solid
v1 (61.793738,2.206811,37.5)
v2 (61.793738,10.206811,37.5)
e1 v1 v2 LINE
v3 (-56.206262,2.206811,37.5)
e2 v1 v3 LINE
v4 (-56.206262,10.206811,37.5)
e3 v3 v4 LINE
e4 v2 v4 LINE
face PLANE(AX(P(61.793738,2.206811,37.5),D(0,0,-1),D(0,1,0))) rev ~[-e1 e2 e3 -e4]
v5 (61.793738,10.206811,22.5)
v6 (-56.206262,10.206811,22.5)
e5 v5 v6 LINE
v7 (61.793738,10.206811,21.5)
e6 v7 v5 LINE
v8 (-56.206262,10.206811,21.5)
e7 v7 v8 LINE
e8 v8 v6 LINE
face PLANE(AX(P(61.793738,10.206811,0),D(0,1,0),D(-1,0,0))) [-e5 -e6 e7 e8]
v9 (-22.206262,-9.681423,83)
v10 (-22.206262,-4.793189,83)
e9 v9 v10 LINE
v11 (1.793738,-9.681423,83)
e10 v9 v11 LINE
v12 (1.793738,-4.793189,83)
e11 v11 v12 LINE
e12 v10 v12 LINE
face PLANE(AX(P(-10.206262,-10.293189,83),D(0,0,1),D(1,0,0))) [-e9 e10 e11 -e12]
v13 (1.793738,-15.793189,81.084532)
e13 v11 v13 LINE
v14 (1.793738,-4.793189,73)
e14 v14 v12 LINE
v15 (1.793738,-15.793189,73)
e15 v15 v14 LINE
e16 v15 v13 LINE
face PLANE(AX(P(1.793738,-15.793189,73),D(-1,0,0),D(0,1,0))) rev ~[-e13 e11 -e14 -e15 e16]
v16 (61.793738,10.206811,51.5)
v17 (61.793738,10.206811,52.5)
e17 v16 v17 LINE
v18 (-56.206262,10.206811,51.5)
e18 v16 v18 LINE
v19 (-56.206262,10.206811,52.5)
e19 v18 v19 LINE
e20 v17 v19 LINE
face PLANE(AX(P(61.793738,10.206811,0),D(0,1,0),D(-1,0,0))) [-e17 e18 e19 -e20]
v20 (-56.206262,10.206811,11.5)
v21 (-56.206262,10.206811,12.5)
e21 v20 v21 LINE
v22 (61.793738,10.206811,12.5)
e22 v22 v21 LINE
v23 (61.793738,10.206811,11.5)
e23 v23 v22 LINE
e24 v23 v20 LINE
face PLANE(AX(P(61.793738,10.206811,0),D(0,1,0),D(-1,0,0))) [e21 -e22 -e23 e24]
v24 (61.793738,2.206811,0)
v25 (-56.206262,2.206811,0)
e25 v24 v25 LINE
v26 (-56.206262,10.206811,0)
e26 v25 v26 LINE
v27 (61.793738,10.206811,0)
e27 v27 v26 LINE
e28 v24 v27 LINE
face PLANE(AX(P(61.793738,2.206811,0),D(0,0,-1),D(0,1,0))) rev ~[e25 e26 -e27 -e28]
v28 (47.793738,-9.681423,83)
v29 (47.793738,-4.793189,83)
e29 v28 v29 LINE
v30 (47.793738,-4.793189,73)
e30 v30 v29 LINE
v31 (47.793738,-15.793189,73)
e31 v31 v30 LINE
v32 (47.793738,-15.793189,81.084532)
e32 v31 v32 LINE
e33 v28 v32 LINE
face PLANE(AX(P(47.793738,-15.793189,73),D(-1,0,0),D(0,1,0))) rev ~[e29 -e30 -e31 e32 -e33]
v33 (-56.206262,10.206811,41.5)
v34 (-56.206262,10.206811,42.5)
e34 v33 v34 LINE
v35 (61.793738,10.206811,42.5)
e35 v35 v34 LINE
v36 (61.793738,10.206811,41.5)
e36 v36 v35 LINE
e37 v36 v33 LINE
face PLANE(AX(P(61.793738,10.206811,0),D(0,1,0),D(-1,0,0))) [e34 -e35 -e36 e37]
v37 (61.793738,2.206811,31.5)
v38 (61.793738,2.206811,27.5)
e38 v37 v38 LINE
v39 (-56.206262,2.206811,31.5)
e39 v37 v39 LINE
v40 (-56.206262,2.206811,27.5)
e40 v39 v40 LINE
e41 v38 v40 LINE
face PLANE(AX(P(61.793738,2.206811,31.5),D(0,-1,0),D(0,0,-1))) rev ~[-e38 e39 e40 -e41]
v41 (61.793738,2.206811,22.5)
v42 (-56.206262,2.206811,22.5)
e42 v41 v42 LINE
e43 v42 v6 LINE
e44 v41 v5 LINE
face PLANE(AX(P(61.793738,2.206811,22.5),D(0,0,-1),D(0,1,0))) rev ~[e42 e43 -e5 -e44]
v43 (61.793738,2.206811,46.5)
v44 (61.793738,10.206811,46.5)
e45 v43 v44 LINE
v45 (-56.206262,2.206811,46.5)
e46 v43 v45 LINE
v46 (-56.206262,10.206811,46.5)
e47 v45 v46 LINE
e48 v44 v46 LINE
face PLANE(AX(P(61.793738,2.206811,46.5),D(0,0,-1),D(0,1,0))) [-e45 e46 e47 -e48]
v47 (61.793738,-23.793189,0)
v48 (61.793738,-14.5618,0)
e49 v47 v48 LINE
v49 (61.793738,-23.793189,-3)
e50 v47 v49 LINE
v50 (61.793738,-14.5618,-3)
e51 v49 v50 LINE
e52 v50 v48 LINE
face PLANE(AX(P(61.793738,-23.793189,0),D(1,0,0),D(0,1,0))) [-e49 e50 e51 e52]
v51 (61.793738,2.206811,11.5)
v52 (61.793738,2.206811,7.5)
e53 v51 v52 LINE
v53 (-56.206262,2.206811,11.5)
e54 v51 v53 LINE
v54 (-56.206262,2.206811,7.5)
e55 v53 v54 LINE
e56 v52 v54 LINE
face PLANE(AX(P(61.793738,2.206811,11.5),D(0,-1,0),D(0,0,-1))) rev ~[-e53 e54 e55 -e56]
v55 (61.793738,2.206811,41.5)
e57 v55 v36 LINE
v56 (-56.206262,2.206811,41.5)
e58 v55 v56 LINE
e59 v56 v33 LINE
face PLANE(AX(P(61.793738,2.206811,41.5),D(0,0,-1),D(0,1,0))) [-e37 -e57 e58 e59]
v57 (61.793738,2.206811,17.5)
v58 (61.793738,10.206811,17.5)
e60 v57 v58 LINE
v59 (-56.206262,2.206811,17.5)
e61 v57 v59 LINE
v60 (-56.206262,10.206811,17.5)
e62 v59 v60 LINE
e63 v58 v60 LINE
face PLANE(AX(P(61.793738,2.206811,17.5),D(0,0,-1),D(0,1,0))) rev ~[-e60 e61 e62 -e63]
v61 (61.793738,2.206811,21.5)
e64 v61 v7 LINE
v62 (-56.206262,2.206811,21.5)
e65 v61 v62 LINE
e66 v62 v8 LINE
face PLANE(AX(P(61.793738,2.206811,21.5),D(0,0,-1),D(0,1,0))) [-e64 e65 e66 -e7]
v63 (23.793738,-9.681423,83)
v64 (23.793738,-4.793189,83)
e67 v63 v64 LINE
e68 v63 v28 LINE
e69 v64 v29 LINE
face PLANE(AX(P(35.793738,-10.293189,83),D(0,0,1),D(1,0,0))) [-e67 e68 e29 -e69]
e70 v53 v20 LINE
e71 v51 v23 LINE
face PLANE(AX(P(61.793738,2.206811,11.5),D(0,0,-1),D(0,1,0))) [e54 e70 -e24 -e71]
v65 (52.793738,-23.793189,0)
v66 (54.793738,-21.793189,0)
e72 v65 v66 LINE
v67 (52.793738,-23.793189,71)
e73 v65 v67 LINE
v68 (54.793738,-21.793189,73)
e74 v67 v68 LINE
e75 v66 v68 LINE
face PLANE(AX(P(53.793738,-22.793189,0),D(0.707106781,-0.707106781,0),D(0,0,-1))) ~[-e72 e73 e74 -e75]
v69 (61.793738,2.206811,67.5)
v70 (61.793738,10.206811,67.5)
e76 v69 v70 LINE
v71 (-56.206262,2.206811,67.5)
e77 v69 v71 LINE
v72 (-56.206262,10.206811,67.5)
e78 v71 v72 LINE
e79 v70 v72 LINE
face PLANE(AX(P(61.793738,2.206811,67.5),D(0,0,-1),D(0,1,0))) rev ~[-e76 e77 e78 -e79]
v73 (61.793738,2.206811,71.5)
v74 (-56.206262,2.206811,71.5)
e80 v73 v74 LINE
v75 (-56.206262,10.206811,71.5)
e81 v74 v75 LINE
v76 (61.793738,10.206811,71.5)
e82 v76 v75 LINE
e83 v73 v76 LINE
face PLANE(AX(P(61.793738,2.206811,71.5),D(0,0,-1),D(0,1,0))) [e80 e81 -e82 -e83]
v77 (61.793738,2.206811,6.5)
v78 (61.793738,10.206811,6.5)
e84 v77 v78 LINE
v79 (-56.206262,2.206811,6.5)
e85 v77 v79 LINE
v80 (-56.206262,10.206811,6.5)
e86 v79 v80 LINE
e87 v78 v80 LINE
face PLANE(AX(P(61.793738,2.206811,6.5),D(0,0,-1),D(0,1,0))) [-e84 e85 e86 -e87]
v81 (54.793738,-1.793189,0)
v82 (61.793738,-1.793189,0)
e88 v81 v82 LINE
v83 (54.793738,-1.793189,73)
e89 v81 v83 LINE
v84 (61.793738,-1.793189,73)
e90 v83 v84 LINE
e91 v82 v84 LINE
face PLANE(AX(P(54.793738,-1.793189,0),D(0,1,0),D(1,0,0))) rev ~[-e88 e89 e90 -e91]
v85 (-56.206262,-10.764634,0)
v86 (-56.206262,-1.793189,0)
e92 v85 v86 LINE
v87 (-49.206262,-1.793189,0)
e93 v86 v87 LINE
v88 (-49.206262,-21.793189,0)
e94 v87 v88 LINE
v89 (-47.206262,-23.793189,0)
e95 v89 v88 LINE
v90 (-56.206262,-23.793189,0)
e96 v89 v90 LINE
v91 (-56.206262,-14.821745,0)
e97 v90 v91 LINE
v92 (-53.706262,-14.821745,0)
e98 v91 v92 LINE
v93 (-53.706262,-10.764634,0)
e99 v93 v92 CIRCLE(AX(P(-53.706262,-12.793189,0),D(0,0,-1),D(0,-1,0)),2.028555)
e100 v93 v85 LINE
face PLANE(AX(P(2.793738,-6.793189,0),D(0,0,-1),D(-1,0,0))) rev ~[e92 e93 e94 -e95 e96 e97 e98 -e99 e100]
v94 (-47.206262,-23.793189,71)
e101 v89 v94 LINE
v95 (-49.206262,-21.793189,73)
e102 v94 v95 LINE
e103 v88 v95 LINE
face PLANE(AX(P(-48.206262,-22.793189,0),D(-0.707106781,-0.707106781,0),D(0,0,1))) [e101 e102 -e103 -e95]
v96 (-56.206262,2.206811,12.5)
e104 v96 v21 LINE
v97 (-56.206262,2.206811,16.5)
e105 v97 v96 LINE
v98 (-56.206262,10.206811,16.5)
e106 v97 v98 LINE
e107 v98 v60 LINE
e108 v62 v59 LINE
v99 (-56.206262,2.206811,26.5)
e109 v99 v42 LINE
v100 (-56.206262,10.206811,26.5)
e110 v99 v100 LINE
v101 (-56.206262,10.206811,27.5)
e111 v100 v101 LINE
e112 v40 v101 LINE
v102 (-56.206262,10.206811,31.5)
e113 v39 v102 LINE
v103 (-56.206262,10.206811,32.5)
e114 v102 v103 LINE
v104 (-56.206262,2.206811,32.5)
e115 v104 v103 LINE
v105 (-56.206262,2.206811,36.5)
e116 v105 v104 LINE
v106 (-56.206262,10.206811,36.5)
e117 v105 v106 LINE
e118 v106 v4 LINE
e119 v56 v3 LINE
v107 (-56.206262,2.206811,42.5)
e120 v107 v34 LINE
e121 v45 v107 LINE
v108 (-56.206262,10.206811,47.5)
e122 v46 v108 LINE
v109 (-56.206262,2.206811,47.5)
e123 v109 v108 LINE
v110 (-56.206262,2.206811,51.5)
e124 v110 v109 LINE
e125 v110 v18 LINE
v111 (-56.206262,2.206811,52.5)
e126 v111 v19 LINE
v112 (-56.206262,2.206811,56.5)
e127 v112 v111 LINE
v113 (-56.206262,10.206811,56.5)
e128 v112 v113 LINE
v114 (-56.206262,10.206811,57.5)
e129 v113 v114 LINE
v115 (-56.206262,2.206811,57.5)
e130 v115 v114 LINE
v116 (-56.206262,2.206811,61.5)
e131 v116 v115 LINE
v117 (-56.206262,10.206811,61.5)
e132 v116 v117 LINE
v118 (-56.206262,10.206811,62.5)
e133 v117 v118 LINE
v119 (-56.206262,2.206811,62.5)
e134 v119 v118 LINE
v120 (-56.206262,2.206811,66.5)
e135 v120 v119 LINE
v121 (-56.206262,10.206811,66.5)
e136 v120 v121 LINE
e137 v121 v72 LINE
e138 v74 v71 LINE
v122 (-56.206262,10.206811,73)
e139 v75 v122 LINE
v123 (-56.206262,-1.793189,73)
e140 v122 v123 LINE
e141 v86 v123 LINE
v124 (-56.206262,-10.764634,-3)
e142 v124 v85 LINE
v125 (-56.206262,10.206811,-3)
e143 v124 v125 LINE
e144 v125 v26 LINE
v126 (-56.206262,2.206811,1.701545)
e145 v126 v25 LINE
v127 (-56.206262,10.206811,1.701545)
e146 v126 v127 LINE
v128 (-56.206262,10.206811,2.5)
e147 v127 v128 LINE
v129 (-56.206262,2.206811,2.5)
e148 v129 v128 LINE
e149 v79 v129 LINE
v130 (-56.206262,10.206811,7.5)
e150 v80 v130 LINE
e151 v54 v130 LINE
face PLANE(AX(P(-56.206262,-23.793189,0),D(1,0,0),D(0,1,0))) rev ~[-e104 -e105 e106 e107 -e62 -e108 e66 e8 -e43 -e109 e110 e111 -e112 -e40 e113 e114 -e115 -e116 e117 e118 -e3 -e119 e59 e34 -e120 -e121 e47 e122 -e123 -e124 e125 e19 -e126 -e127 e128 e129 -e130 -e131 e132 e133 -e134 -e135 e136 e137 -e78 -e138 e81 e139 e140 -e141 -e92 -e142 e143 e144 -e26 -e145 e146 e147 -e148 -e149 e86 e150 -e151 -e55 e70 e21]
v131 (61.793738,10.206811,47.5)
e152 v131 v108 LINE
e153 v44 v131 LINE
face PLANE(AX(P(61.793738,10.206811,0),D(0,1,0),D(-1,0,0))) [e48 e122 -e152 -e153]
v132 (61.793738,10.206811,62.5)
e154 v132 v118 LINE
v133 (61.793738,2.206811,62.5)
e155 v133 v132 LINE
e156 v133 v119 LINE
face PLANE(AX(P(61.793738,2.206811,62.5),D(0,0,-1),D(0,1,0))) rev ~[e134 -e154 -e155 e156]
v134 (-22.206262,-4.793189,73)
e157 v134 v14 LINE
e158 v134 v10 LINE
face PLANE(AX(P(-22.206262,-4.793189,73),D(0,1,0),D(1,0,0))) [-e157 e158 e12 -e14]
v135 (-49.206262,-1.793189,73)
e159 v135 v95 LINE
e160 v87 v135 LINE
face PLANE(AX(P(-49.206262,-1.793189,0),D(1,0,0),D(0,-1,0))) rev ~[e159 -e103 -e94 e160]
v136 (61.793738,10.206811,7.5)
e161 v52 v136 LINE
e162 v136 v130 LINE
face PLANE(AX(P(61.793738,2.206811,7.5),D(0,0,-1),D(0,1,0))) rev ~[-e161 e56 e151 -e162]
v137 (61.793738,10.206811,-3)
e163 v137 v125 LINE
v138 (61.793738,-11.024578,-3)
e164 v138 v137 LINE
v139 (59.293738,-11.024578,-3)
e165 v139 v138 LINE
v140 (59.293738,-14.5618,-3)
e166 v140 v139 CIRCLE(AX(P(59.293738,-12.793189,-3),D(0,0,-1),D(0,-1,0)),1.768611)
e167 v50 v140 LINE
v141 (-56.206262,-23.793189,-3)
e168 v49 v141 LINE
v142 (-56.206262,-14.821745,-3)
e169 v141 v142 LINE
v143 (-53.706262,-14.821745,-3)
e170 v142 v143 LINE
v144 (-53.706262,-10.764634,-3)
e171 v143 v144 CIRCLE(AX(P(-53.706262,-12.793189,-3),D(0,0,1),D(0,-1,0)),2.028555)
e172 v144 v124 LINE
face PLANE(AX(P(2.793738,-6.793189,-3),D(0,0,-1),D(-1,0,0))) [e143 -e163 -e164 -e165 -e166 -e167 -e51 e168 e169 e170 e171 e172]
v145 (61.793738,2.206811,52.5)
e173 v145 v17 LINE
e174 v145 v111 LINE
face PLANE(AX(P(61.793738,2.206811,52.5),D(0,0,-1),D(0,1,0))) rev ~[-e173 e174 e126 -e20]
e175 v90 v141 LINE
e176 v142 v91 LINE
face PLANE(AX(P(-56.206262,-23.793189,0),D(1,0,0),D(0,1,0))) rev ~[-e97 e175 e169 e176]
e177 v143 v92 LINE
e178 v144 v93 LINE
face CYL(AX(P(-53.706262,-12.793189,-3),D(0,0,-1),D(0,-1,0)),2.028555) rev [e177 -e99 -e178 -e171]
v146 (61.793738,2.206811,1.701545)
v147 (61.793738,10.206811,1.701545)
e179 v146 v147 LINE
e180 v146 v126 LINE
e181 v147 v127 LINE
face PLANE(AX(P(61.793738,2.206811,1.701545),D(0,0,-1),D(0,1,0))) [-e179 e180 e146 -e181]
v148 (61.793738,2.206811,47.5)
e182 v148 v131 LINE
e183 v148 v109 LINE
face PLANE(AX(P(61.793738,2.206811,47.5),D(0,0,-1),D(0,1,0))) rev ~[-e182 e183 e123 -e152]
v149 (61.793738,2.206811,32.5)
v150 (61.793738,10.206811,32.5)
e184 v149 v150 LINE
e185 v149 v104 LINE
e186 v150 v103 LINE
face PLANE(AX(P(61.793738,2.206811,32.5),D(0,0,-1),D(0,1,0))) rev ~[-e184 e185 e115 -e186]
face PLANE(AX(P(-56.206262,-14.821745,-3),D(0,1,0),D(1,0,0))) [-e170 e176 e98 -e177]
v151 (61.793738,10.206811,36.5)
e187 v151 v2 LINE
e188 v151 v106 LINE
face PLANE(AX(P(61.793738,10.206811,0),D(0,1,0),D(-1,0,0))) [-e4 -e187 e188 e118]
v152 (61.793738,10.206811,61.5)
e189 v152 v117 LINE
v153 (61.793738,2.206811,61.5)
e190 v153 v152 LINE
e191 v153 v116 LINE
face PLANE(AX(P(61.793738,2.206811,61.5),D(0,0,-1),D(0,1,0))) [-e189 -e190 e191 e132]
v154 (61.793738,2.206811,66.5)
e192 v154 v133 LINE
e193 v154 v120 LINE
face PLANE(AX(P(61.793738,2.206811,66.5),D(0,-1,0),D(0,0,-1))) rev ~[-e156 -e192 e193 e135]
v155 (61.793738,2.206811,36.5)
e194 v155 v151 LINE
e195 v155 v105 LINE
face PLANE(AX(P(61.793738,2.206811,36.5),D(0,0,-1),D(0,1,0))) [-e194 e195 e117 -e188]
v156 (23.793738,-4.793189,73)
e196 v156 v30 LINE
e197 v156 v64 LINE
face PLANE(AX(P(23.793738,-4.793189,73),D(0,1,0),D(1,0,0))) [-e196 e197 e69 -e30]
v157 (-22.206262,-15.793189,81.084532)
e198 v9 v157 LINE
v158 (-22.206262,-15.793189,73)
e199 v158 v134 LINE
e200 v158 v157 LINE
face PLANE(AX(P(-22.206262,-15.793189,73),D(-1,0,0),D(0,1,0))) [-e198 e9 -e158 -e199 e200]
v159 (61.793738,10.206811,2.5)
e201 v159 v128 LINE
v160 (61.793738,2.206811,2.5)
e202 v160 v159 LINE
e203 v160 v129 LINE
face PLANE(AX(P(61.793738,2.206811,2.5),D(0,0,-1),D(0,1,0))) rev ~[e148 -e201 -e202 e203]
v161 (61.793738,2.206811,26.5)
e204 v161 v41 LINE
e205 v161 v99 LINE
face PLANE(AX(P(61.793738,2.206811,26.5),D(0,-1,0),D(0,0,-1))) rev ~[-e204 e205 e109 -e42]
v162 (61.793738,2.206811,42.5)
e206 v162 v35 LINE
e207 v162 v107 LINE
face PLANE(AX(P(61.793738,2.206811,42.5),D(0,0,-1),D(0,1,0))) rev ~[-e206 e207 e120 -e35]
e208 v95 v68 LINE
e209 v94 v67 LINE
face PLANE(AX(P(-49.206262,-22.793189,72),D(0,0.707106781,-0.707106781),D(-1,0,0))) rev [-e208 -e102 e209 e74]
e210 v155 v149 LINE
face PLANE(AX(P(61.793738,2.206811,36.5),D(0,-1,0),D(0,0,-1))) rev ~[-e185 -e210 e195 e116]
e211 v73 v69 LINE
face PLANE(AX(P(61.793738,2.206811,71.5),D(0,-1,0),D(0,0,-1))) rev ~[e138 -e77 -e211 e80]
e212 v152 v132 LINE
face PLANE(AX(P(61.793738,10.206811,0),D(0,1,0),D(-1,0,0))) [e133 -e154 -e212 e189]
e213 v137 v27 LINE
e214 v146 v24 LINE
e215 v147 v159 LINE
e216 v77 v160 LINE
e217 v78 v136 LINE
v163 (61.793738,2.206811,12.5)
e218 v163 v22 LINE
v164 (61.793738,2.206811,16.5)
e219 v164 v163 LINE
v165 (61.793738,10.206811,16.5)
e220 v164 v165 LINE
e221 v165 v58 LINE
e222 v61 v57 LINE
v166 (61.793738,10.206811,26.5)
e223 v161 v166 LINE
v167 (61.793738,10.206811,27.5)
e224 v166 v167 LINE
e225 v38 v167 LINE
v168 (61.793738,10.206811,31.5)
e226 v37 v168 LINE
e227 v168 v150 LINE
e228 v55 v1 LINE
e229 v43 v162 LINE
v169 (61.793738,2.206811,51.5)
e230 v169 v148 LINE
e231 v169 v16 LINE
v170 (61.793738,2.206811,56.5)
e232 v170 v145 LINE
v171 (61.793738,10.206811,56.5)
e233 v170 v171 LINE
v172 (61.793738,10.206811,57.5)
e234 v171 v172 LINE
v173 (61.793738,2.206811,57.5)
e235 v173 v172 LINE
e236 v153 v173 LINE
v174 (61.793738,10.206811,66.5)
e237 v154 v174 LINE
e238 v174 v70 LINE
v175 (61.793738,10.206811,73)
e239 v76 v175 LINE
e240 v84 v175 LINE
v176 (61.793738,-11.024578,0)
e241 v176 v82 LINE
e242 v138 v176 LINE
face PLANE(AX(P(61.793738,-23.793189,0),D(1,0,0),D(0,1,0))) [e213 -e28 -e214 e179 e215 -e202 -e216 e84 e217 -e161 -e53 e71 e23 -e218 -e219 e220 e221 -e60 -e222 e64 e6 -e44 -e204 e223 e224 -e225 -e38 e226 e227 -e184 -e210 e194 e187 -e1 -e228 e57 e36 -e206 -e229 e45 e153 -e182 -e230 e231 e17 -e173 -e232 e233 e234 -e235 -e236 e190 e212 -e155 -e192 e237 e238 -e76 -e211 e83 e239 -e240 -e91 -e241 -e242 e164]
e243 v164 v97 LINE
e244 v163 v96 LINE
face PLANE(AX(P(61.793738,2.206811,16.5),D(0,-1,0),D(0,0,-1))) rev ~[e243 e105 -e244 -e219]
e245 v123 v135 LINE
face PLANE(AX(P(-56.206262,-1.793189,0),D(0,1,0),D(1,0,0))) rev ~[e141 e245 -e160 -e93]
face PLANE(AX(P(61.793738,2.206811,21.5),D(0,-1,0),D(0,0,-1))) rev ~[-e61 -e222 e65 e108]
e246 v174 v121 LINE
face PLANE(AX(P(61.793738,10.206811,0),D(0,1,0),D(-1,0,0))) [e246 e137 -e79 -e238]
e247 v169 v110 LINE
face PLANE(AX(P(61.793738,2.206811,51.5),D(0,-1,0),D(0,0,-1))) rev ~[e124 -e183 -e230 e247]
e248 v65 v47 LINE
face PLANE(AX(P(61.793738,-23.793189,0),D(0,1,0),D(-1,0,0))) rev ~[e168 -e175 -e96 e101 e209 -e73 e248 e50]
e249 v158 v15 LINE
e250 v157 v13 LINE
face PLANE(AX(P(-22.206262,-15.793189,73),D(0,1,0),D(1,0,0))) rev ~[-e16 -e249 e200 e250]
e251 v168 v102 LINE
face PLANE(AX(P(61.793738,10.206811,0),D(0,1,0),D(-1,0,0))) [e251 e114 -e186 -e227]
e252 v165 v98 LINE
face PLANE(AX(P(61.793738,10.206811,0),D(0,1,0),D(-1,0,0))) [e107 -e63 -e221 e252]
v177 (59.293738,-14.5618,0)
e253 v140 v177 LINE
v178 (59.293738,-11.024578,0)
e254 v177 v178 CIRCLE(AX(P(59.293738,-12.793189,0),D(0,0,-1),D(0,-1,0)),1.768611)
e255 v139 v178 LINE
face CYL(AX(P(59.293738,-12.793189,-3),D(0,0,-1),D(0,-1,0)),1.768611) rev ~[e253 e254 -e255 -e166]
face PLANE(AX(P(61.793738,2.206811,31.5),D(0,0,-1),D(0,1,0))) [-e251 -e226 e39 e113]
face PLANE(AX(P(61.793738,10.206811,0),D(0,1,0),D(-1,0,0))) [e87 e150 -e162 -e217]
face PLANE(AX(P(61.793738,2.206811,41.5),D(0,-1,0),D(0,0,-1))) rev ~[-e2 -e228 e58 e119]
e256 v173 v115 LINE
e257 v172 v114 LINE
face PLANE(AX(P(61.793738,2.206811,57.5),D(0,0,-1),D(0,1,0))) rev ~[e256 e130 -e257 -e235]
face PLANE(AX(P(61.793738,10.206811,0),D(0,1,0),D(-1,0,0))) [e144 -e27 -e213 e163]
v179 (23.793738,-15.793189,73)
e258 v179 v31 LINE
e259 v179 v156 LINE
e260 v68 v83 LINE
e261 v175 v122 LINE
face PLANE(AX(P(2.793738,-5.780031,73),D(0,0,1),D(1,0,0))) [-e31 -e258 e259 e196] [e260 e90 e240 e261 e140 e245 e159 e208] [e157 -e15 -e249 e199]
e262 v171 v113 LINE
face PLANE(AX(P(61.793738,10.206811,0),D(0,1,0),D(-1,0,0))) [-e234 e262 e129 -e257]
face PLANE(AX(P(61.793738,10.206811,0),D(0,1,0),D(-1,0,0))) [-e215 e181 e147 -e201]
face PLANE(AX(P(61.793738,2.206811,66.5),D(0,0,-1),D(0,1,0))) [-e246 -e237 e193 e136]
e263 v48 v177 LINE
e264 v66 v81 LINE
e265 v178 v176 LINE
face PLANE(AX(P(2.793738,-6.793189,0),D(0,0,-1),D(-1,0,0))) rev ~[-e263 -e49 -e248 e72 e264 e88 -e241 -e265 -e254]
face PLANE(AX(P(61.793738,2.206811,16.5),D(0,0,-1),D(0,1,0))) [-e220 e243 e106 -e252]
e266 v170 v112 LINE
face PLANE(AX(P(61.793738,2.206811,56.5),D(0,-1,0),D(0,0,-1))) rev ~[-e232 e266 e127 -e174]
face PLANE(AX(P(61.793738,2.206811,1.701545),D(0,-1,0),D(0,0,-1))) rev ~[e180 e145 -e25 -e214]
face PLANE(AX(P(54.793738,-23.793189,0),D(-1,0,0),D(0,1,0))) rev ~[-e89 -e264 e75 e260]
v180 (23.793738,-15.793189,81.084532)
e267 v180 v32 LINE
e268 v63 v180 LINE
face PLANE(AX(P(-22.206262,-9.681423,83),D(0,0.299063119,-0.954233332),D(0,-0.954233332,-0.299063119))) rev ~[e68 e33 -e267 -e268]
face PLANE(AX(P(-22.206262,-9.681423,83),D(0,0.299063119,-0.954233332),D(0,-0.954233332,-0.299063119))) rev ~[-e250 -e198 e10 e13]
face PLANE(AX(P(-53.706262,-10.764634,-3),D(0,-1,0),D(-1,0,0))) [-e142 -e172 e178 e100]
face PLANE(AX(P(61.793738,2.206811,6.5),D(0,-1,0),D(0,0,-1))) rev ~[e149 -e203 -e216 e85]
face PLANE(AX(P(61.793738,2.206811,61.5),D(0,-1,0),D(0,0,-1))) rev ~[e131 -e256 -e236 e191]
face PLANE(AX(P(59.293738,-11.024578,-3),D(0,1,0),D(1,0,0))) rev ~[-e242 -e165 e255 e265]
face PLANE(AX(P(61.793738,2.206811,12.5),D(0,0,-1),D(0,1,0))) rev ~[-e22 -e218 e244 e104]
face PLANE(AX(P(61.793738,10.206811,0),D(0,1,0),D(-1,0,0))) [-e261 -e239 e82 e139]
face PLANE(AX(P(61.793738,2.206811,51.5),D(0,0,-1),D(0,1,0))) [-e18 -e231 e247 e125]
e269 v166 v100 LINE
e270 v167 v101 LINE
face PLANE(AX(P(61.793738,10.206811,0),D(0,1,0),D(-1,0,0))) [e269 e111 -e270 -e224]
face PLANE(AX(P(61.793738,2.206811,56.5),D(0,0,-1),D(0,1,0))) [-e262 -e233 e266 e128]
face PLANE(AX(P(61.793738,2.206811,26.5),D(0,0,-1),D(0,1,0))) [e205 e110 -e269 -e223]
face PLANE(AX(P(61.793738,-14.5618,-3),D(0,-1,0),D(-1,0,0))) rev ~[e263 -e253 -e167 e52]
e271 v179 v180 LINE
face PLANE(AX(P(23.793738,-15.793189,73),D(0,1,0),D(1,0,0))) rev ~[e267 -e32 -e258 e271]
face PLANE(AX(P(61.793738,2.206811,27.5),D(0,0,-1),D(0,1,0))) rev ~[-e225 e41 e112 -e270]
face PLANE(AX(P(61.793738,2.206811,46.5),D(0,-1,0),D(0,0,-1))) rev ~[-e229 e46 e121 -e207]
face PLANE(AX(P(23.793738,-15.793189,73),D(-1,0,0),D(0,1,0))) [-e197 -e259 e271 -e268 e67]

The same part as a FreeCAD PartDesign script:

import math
import FreeCAD as App
import Part
import Sketcher


def edges_at(feature, points):
    """Names of the edges that pass closest to the given points."""
    edges = feature.Shape.Edges
    near = lambda p: min(range(len(edges)), key=lambda i: edges[i].distToShape(Part.Vertex(*p))[0])
    return sorted({f"Edge{near(p) + 1}" for p in points})

doc = App.newDocument("Part")
body = doc.addObject("PartDesign::Body", "Body")

sketch1 = body.newObject("Sketcher::SketchObject", "Sketch")
sketch1.AttachmentSupport = (doc.getObject("XY_Plane"), [""])
sketch1.MapMode = "FlatFace"
sketch1.addGeometry([
    Part.LineSegment(App.Vector(-49.206262, -23.793189, 0), App.Vector(54.793738, -23.793189, 0)),
    Part.LineSegment(App.Vector(54.793738, -23.793189, 0), App.Vector(54.793738, -1.793189, 0)),
    Part.LineSegment(App.Vector(54.793738, -1.793189, 0), App.Vector(61.793738, -1.793189, 0)),
    Part.LineSegment(App.Vector(61.793738, -1.793189, 0), App.Vector(61.793738, 10.206811, 0)),
    Part.LineSegment(App.Vector(61.793738, 10.206811, 0), App.Vector(-56.206262, 10.206811, 0)),
    Part.LineSegment(App.Vector(-56.206262, 10.206811, 0), App.Vector(-56.206262, -1.793189, 0)),
    Part.LineSegment(App.Vector(-56.206262, -1.793189, 0), App.Vector(-49.206262, -1.793189, 0)),
    Part.LineSegment(App.Vector(-49.206262, -1.793189, 0), App.Vector(-49.206262, -23.793189, 0)),
], False)
sketch1.addConstraint([
    Sketcher.Constraint("Coincident", 0, 2, 1, 1),
    Sketcher.Constraint("Coincident", 1, 2, 2, 1),
    Sketcher.Constraint("Coincident", 2, 2, 3, 1),
    Sketcher.Constraint("Coincident", 3, 2, 4, 1),
    Sketcher.Constraint("Coincident", 4, 2, 5, 1),
    Sketcher.Constraint("Coincident", 5, 2, 6, 1),
    Sketcher.Constraint("Coincident", 6, 2, 7, 1),
    Sketcher.Constraint("Coincident", 7, 2, 0, 1),
    Sketcher.Constraint("Horizontal", 0),
    Sketcher.Constraint("Vertical", 1),
    Sketcher.Constraint("Horizontal", 2),
    Sketcher.Constraint("Vertical", 3),
    Sketcher.Constraint("Horizontal", 4),
    Sketcher.Constraint("Vertical", 5),
    Sketcher.Constraint("Horizontal", 6),
    Sketcher.Constraint("Vertical", 7),
    Sketcher.Constraint("Horizontal", 2, 2, 5, 2),
    Sketcher.Constraint("Equal", 2, 6),
    Sketcher.Constraint("DistanceX", 0, 1, 0, 2, 104.0),
    Sketcher.Constraint("DistanceX", 2, 1, 2, 2, 7.0),
    Sketcher.Constraint("DistanceY", 1, 1, 1, 2, 22.0),
    Sketcher.Constraint("DistanceY", 3, 1, 3, 2, 12.0),
    Sketcher.Constraint("DistanceY", 0, 2, -1, 1, 23.793189),
    Sketcher.Constraint("DistanceX", -1, 1, 0, 2, 54.793738),
])
pad1 = body.newObject("PartDesign::Pad", "Pad")
pad1.Profile = sketch1
pad1.Length = 73

sketch2 = body.newObject("Sketcher::SketchObject", "Sketch001")
sketch2.AttachmentSupport = (doc.getObject("XY_Plane"), [""])
sketch2.MapMode = "FlatFace"
sketch2.addGeometry([
    Part.LineSegment(App.Vector(61.793738, 10.206811, 0), App.Vector(61.793738, -23.793189, 0)),
    Part.LineSegment(App.Vector(61.793738, -23.793189, 0), App.Vector(-56.206262, -23.793189, 0)),
    Part.LineSegment(App.Vector(-56.206262, -23.793189, 0), App.Vector(-56.206262, 10.206811, 0)),
    Part.LineSegment(App.Vector(-56.206262, 10.206811, 0), App.Vector(61.793738, 10.206811, 0)),
], False)
sketch2.addConstraint([
    Sketcher.Constraint("Coincident", 0, 2, 1, 1),
    Sketcher.Constraint("Coincident", 1, 2, 2, 1),
    Sketcher.Constraint("Coincident", 2, 2, 3, 1),
    Sketcher.Constraint("Coincident", 3, 2, 0, 1),
    Sketcher.Constraint("Vertical", 0),
    Sketcher.Constraint("Horizontal", 1),
    Sketcher.Constraint("Vertical", 2),
    Sketcher.Constraint("Horizontal", 3),
    Sketcher.Constraint("DistanceX", 1, 2, 1, 1, 118.0),
    Sketcher.Constraint("DistanceY", 0, 2, 0, 1, 34.0),
    Sketcher.Constraint("DistanceY", 0, 2, -1, 1, 23.793189),
    Sketcher.Constraint("DistanceX", -1, 1, 0, 2, 61.793738),
])
pad2 = body.newObject("PartDesign::Pad", "Pad001")
pad2.Profile = sketch2
pad2.Length = 3
pad2.Reversed = True

sketch3 = body.newObject("Sketcher::SketchObject", "Sketch002")
sketch3.AttachmentSupport = (doc.getObject("YZ_Plane"), [""])
sketch3.MapMode = "FlatFace"
sketch3.AttachmentOffset = App.Placement(App.Vector(0, 0, 61.793738), App.Rotation())
sketch3.addGeometry([
    Part.LineSegment(App.Vector(10.206811, 71.5, 0), App.Vector(2.206811, 71.5, 0)),
    Part.LineSegment(App.Vector(2.206811, 71.5, 0), App.Vector(2.206811, 67.5, 0)),
    Part.LineSegment(App.Vector(2.206811, 67.5, 0), App.Vector(10.206811, 67.5, 0)),
    Part.LineSegment(App.Vector(10.206811, 67.5, 0), App.Vector(10.206811, 71.5, 0)),
    Part.LineSegment(App.Vector(10.206811, 66.5, 0), App.Vector(2.206811, 66.5, 0)),
    Part.LineSegment(App.Vector(2.206811, 66.5, 0), App.Vector(2.206811, 62.5, 0)),
    Part.LineSegment(App.Vector(2.206811, 62.5, 0), App.Vector(10.206811, 62.5, 0)),
    Part.LineSegment(App.Vector(10.206811, 62.5, 0), App.Vector(10.206811, 66.5, 0)),
    Part.LineSegment(App.Vector(10.206811, 61.5, 0), App.Vector(2.206811, 61.5, 0)),
    Part.LineSegment(App.Vector(2.206811, 61.5, 0), App.Vector(2.206811, 57.5, 0)),
    Part.LineSegment(App.Vector(2.206811, 57.5, 0), App.Vector(10.206811, 57.5, 0)),
    Part.LineSegment(App.Vector(10.206811, 57.5, 0), App.Vector(10.206811, 61.5, 0)),
    Part.LineSegment(App.Vector(10.206811, 56.5, 0), App.Vector(2.206811, 56.5, 0)),
    Part.LineSegment(App.Vector(2.206811, 56.5, 0), App.Vector(2.206811, 52.5, 0)),
    Part.LineSegment(App.Vector(2.206811, 52.5, 0), App.Vector(10.206811, 52.5, 0)),
    Part.LineSegment(App.Vector(10.206811, 52.5, 0), App.Vector(10.206811, 56.5, 0)),
    Part.LineSegment(App.Vector(10.206811, 51.5, 0), App.Vector(2.206811, 51.5, 0)),
    Part.LineSegment(App.Vector(2.206811, 51.5, 0), App.Vector(2.206811, 47.5, 0)),
    Part.LineSegment(App.Vector(2.206811, 47.5, 0), App.Vector(10.206811, 47.5, 0)),
    Part.LineSegment(App.Vector(10.206811, 47.5, 0), App.Vector(10.206811, 51.5, 0)),
    Part.LineSegment(App.Vector(10.206811, 46.5, 0), App.Vector(2.206811, 46.5, 0)),
    Part.LineSegment(App.Vector(2.206811, 46.5, 0), App.Vector(2.206811, 42.5, 0)),
    Part.LineSegment(App.Vector(2.206811, 42.5, 0), App.Vector(10.206811, 42.5, 0)),
    Part.LineSegment(App.Vector(10.206811, 42.5, 0), App.Vector(10.206811, 46.5, 0)),
    Part.LineSegment(App.Vector(10.206811, 41.5, 0), App.Vector(2.206811, 41.5, 0)),
    Part.LineSegment(App.Vector(2.206811, 41.5, 0), App.Vector(2.206811, 37.5, 0)),
    Part.LineSegment(App.Vector(2.206811, 37.5, 0), App.Vector(10.206811, 37.5, 0)),
    Part.LineSegment(App.Vector(10.206811, 37.5, 0), App.Vector(10.206811, 41.5, 0)),
    Part.LineSegment(App.Vector(10.206811, 36.5, 0), App.Vector(2.206811, 36.5, 0)),
    Part.LineSegment(App.Vector(2.206811, 36.5, 0), App.Vector(2.206811, 32.5, 0)),
    Part.LineSegment(App.Vector(2.206811, 32.5, 0), App.Vector(10.206811, 32.5, 0)),
    Part.LineSegment(App.Vector(10.206811, 32.5, 0), App.Vector(10.206811, 36.5, 0)),
    Part.LineSegment(App.Vector(10.206811, 31.5, 0), App.Vector(2.206811, 31.5, 0)),
    Part.LineSegment(App.Vector(2.206811, 31.5, 0), App.Vector(2.206811, 27.5, 0)),
    Part.LineSegment(App.Vector(2.206811, 27.5, 0), App.Vector(10.206811, 27.5, 0)),
    Part.LineSegment(App.Vector(10.206811, 27.5, 0), App.Vector(10.206811, 31.5, 0)),
    Part.LineSegment(App.Vector(10.206811, 26.5, 0), App.Vector(2.206811, 26.5, 0)),
    Part.LineSegment(App.Vector(2.206811, 26.5, 0), App.Vector(2.206811, 22.5, 0)),
    Part.LineSegment(App.Vector(2.206811, 22.5, 0), App.Vector(10.206811, 22.5, 0)),
    Part.LineSegment(App.Vector(10.206811, 22.5, 0), App.Vector(10.206811, 26.5, 0)),
    Part.LineSegment(App.Vector(10.206811, 21.5, 0), App.Vector(2.206811, 21.5, 0)),
    Part.LineSegment(App.Vector(2.206811, 21.5, 0), App.Vector(2.206811, 17.5, 0)),
    Part.LineSegment(App.Vector(2.206811, 17.5, 0), App.Vector(10.206811, 17.5, 0)),
    Part.LineSegment(App.Vector(10.206811, 17.5, 0), App.Vector(10.206811, 21.5, 0)),
    Part.LineSegment(App.Vector(10.206811, 16.5, 0), App.Vector(2.206811, 16.5, 0)),
    Part.LineSegment(App.Vector(2.206811, 16.5, 0), App.Vector(2.206811, 12.5, 0)),
    Part.LineSegment(App.Vector(2.206811, 12.5, 0), App.Vector(10.206811, 12.5, 0)),
    Part.LineSegment(App.Vector(10.206811, 12.5, 0), App.Vector(10.206811, 16.5, 0)),
    Part.LineSegment(App.Vector(10.206811, 11.5, 0), App.Vector(2.206811, 11.5, 0)),
    Part.LineSegment(App.Vector(2.206811, 11.5, 0), App.Vector(2.206811, 7.5, 0)),
    Part.LineSegment(App.Vector(2.206811, 7.5, 0), App.Vector(10.206811, 7.5, 0)),
    Part.LineSegment(App.Vector(10.206811, 7.5, 0), App.Vector(10.206811, 11.5, 0)),
    Part.LineSegment(App.Vector(10.206811, 6.5, 0), App.Vector(2.206811, 6.5, 0)),
    Part.LineSegment(App.Vector(2.206811, 6.5, 0), App.Vector(2.206811, 2.5, 0)),
    Part.LineSegment(App.Vector(2.206811, 2.5, 0), App.Vector(10.206811, 2.5, 0)),
    Part.LineSegment(App.Vector(10.206811, 2.5, 0), App.Vector(10.206811, 6.5, 0)),
    Part.LineSegment(App.Vector(10.206811, 1.701545, 0), App.Vector(2.206811, 1.701545, 0)),
    Part.LineSegment(App.Vector(2.206811, 1.701545, 0), App.Vector(2.206811, 0, 0)),
    Part.LineSegment(App.Vector(2.206811, 0, 0), App.Vector(10.206811, 0, 0)),
    Part.LineSegment(App.Vector(10.206811, 0, 0), App.Vector(10.206811, 1.701545, 0)),
], False)
sketch3.addConstraint([
    Sketcher.Constraint("Coincident", 0, 2, 1, 1),
    Sketcher.Constraint("Coincident", 1, 2, 2, 1),
    Sketcher.Constraint("Coincident", 2, 2, 3, 1),
    Sketcher.Constraint("Coincident", 3, 2, 0, 1),
    Sketcher.Constraint("Coincident", 4, 2, 5, 1),
    Sketcher.Constraint("Coincident", 5, 2, 6, 1),
    Sketcher.Constraint("Coincident", 6, 2, 7, 1),
    Sketcher.Constraint("Coincident", 7, 2, 4, 1),
    Sketcher.Constraint("Coincident", 8, 2, 9, 1),
    Sketcher.Constraint("Coincident", 9, 2, 10, 1),
    Sketcher.Constraint("Coincident", 10, 2, 11, 1),
    Sketcher.Constraint("Coincident", 11, 2, 8, 1),
    Sketcher.Constraint("Coincident", 12, 2, 13, 1),
    Sketcher.Constraint("Coincident", 13, 2, 14, 1),
    Sketcher.Constraint("Coincident", 14, 2, 15, 1),
    Sketcher.Constraint("Coincident", 15, 2, 12, 1),
    Sketcher.Constraint("Coincident", 16, 2, 17, 1),
    Sketcher.Constraint("Coincident", 17, 2, 18, 1),
    Sketcher.Constraint("Coincident", 18, 2, 19, 1),
    Sketcher.Constraint("Coincident", 19, 2, 16, 1),
    Sketcher.Constraint("Coincident", 20, 2, 21, 1),
    Sketcher.Constraint("Coincident", 21, 2, 22, 1),
    Sketcher.Constraint("Coincident", 22, 2, 23, 1),
    Sketcher.Constraint("Coincident", 23, 2, 20, 1),
    Sketcher.Constraint("Coincident", 24, 2, 25, 1),
    Sketcher.Constraint("Coincident", 25, 2, 26, 1),
    Sketcher.Constraint("Coincident", 26, 2, 27, 1),
    Sketcher.Constraint("Coincident", 27, 2, 24, 1),
    Sketcher.Constraint("Coincident", 28, 2, 29, 1),
    Sketcher.Constraint("Coincident", 29, 2, 30, 1),
    Sketcher.Constraint("Coincident", 30, 2, 31, 1),
    Sketcher.Constraint("Coincident", 31, 2, 28, 1),
    Sketcher.Constraint("Coincident", 32, 2, 33, 1),
    Sketcher.Constraint("Coincident", 33, 2, 34, 1),
    Sketcher.Constraint("Coincident", 34, 2, 35, 1),
    Sketcher.Constraint("Coincident", 35, 2, 32, 1),
    Sketcher.Constraint("Coincident", 36, 2, 37, 1),
    Sketcher.Constraint("Coincident", 37, 2, 38, 1),
    Sketcher.Constraint("Coincident", 38, 2, 39, 1),
    Sketcher.Constraint("Coincident", 39, 2, 36, 1),
    Sketcher.Constraint("Coincident", 40, 2, 41, 1),
    Sketcher.Constraint("Coincident", 41, 2, 42, 1),
    Sketcher.Constraint("Coincident", 42, 2, 43, 1),
    Sketcher.Constraint("Coincident", 43, 2, 40, 1),
    Sketcher.Constraint("Coincident", 44, 2, 45, 1),
    Sketcher.Constraint("Coincident", 45, 2, 46, 1),
    Sketcher.Constraint("Coincident", 46, 2, 47, 1),
    Sketcher.Constraint("Coincident", 47, 2, 44, 1),
    Sketcher.Constraint("Coincident", 48, 2, 49, 1),
    Sketcher.Constraint("Coincident", 49, 2, 50, 1),
    Sketcher.Constraint("Coincident", 50, 2, 51, 1),
    Sketcher.Constraint("Coincident", 51, 2, 48, 1),
    Sketcher.Constraint("Coincident", 52, 2, 53, 1),
    Sketcher.Constraint("Coincident", 53, 2, 54, 1),
    Sketcher.Constraint("Coincident", 54, 2, 55, 1),
    Sketcher.Constraint("Coincident", 55, 2, 52, 1),
    Sketcher.Constraint("Coincident", 56, 2, 57, 1),
    Sketcher.Constraint("Coincident", 57, 2, 58, 1),
    Sketcher.Constraint("Coincident", 58, 2, 59, 1),
    Sketcher.Constraint("Coincident", 59, 2, 56, 1),
    Sketcher.Constraint("Horizontal", 0),
    Sketcher.Constraint("Vertical", 1),
    Sketcher.Constraint("Horizontal", 2),
    Sketcher.Constraint("Vertical", 3),
    Sketcher.Constraint("Horizontal", 4),
    Sketcher.Constraint("Vertical", 5),
    Sketcher.Constraint("Horizontal", 6),
    Sketcher.Constraint("Vertical", 7),
    Sketcher.Constraint("Horizontal", 8),
    Sketcher.Constraint("Vertical", 9),
    Sketcher.Constraint("Horizontal", 10),
    Sketcher.Constraint("Vertical", 11),
    Sketcher.Constraint("Horizontal", 12),
    Sketcher.Constraint("Vertical", 13),
    Sketcher.Constraint("Horizontal", 14),
    Sketcher.Constraint("Vertical", 15),
    Sketcher.Constraint("Horizontal", 16),
    Sketcher.Constraint("Vertical", 17),
    Sketcher.Constraint("Horizontal", 18),
    Sketcher.Constraint("Vertical", 19),
    Sketcher.Constraint("Horizontal", 20),
    Sketcher.Constraint("Vertical", 21),
    Sketcher.Constraint("Horizontal", 22),
    Sketcher.Constraint("Vertical", 23),
    Sketcher.Constraint("Horizontal", 24),
    Sketcher.Constraint("Vertical", 25),
    Sketcher.Constraint("Horizontal", 26),
    Sketcher.Constraint("Vertical", 27),
    Sketcher.Constraint("Horizontal", 28),
    Sketcher.Constraint("Vertical", 29),
    Sketcher.Constraint("Horizontal", 30),
    Sketcher.Constraint("Vertical", 31),
    Sketcher.Constraint("Horizontal", 32),
    Sketcher.Constraint("Vertical", 33),
    Sketcher.Constraint("Horizontal", 34),
    Sketcher.Constraint("Vertical", 35),
    Sketcher.Constraint("Horizontal", 36),
    Sketcher.Constraint("Vertical", 37),
    Sketcher.Constraint("Horizontal", 38),
    Sketcher.Constraint("Vertical", 39),
    Sketcher.Constraint("Horizontal", 40),
    Sketcher.Constraint("Vertical", 41),
    Sketcher.Constraint("Horizontal", 42),
    Sketcher.Constraint("Vertical", 43),
    Sketcher.Constraint("Horizontal", 44),
    Sketcher.Constraint("Vertical", 45),
    Sketcher.Constraint("Horizontal", 46),
    Sketcher.Constraint("Vertical", 47),
    Sketcher.Constraint("Horizontal", 48),
    Sketcher.Constraint("Vertical", 49),
    Sketcher.Constraint("Horizontal", 50),
    Sketcher.Constraint("Vertical", 51),
    Sketcher.Constraint("Horizontal", 52),
    Sketcher.Constraint("Vertical", 53),
    Sketcher.Constraint("Horizontal", 54),
    Sketcher.Constraint("Vertical", 55),
    Sketcher.Constraint("Horizontal", 56),
    Sketcher.Constraint("Vertical", 57),
    Sketcher.Constraint("Horizontal", 58),
    Sketcher.Constraint("Vertical", 59),
    Sketcher.Constraint("PointOnObject", 57, 2, -1),
    Sketcher.Constraint("Vertical", 1, 2, 4, 2),
    Sketcher.Constraint("Vertical", 3, 2, 6, 2),
    Sketcher.Constraint("Vertical", 5, 2, 8, 2),
    Sketcher.Constraint("Vertical", 7, 2, 10, 2),
    Sketcher.Constraint("Vertical", 9, 2, 12, 2),
    Sketcher.Constraint("Vertical", 11, 2, 14, 2),
    Sketcher.Constraint("Vertical", 13, 2, 16, 2),
    Sketcher.Constraint("Vertical", 15, 2, 18, 2),
    Sketcher.Constraint("Vertical", 17, 2, 20, 2),
    Sketcher.Constraint("Vertical", 19, 2, 22, 2),
    Sketcher.Constraint("Vertical", 21, 2, 24, 2),
    Sketcher.Constraint("Vertical", 23, 2, 26, 2),
    Sketcher.Constraint("Vertical", 25, 2, 28, 2),
    Sketcher.Constraint("Vertical", 27, 2, 30, 2),
    Sketcher.Constraint("Vertical", 29, 2, 32, 2),
    Sketcher.Constraint("Vertical", 31, 2, 34, 2),
    Sketcher.Constraint("Vertical", 33, 2, 36, 2),
    Sketcher.Constraint("Vertical", 35, 2, 38, 2),
    Sketcher.Constraint("Vertical", 37, 2, 40, 2),
    Sketcher.Constraint("Vertical", 39, 2, 42, 2),
    Sketcher.Constraint("Vertical", 41, 2, 44, 2),
    Sketcher.Constraint("Vertical", 43, 2, 46, 2),
    Sketcher.Constraint("Vertical", 45, 2, 48, 2),
    Sketcher.Constraint("Vertical", 47, 2, 50, 2),
    Sketcher.Constraint("Vertical", 49, 2, 52, 2),
    Sketcher.Constraint("Vertical", 51, 2, 54, 2),
    Sketcher.Constraint("Vertical", 53, 2, 56, 2),
    Sketcher.Constraint("Vertical", 55, 2, 58, 2),
    Sketcher.Constraint("Equal", 3, 5),
    Sketcher.Constraint("Equal", 7, 9),
    Sketcher.Constraint("Equal", 11, 13),
    Sketcher.Constraint("Equal", 15, 17),
    Sketcher.Constraint("Equal", 19, 21),
    Sketcher.Constraint("Equal", 23, 25),
    Sketcher.Constraint("Equal", 27, 29),
    Sketcher.Constraint("Equal", 31, 33),
    Sketcher.Constraint("Equal", 35, 37),
    Sketcher.Constraint("Equal", 39, 41),
    Sketcher.Constraint("Equal", 43, 45),
    Sketcher.Constraint("Equal", 47, 49),
    Sketcher.Constraint("Equal", 51, 53),
    Sketcher.Constraint("DistanceX", 0, 2, 0, 1, 8.0),
    Sketcher.Constraint("DistanceY", 1, 2, 1, 1, 4.0),
    Sketcher.Constraint("DistanceY", 4, 2, 1, 2, 1.0),
    Sketcher.Constraint("DistanceY", 8, 2, 5, 2, 1.0),
    Sketcher.Constraint("DistanceY", 12, 2, 9, 2, 1.0),
    Sketcher.Constraint("DistanceY", 16, 2, 13, 2, 1.0),
    Sketcher.Constraint("DistanceY", 20, 2, 17, 2, 1.0),
    Sketcher.Constraint("DistanceY", 24, 2, 21, 2, 1.0),
    Sketcher.Constraint("DistanceY", 28, 2, 25, 2, 1.0),
    Sketcher.Constraint("DistanceY", 32, 2, 29, 2, 1.0),
    Sketcher.Constraint("DistanceY", 36, 2, 33, 2, 1.0),
    Sketcher.Constraint("DistanceY", 40, 2, 37, 2, 1.0),
    Sketcher.Constraint("DistanceY", 44, 2, 41, 2, 1.0),
    Sketcher.Constraint("DistanceY", 48, 2, 45, 2, 1.0),
    Sketcher.Constraint("DistanceY", 52, 2, 49, 2, 1.0),
    Sketcher.Constraint("DistanceY", -1, 1, 0, 2, 71.5),
    Sketcher.Constraint("DistanceY", 57, 2, 57, 1, 1.701545),
    Sketcher.Constraint("DistanceX", -1, 1, 0, 2, 2.206811),
])
pocket1 = body.newObject("PartDesign::Pocket", "Pocket")
pocket1.Profile = sketch3
pocket1.Length = 122

sketch4 = body.newObject("Sketcher::SketchObject", "Sketch003")
sketch4.AttachmentSupport = (doc.getObject("XY_Plane"), [""])
sketch4.MapMode = "FlatFace"
sketch4.AttachmentOffset = App.Placement(App.Vector(0, 0, 73), App.Rotation())
sketch4.addGeometry([
    Part.LineSegment(App.Vector(23.793738, -4.793189, 0), App.Vector(23.793738, -15.793189, 0)),
    Part.LineSegment(App.Vector(23.793738, -15.793189, 0), App.Vector(47.793738, -15.793189, 0)),
    Part.LineSegment(App.Vector(47.793738, -15.793189, 0), App.Vector(47.793738, -4.793189, 0)),
    Part.LineSegment(App.Vector(47.793738, -4.793189, 0), App.Vector(23.793738, -4.793189, 0)),
    Part.LineSegment(App.Vector(-22.206262, -4.793189, 0), App.Vector(-22.206262, -15.793189, 0)),
    Part.LineSegment(App.Vector(-22.206262, -15.793189, 0), App.Vector(1.793738, -15.793189, 0)),
    Part.LineSegment(App.Vector(1.793738, -15.793189, 0), App.Vector(1.793738, -4.793189, 0)),
    Part.LineSegment(App.Vector(1.793738, -4.793189, 0), App.Vector(-22.206262, -4.793189, 0)),
], False)
sketch4.addConstraint([
    Sketcher.Constraint("Coincident", 0, 2, 1, 1),
    Sketcher.Constraint("Coincident", 1, 2, 2, 1),
    Sketcher.Constraint("Coincident", 2, 2, 3, 1),
    Sketcher.Constraint("Coincident", 3, 2, 0, 1),
    Sketcher.Constraint("Coincident", 4, 2, 5, 1),
    Sketcher.Constraint("Coincident", 5, 2, 6, 1),
    Sketcher.Constraint("Coincident", 6, 2, 7, 1),
    Sketcher.Constraint("Coincident", 7, 2, 4, 1),
    Sketcher.Constraint("Vertical", 0),
    Sketcher.Constraint("Horizontal", 1),
    Sketcher.Constraint("Vertical", 2),
    Sketcher.Constraint("Horizontal", 3),
    Sketcher.Constraint("Vertical", 4),
    Sketcher.Constraint("Horizontal", 5),
    Sketcher.Constraint("Vertical", 6),
    Sketcher.Constraint("Horizontal", 7),
    Sketcher.Constraint("Horizontal", 1, 2, 4, 2),
    Sketcher.Constraint("Horizontal", 3, 2, 6, 2),
    Sketcher.Constraint("Equal", 3, 5),
    Sketcher.Constraint("DistanceX", 1, 1, 1, 2, 24.0),
    Sketcher.Constraint("DistanceY", 0, 2, 0, 1, 11.0),
    Sketcher.Constraint("DistanceX", 4, 2, 0, 2, 46.0),
    Sketcher.Constraint("DistanceY", 0, 2, -1, 1, 15.793189),
    Sketcher.Constraint("DistanceX", -1, 1, 0, 2, 23.793738),
])
pad3 = body.newObject("PartDesign::Pad", "Pad002")
pad3.Profile = sketch4
pad3.Length = 10

sketch5 = body.newObject("Sketcher::SketchObject", "Sketch004")
sketch5.AttachmentSupport = (doc.getObject("YZ_Plane"), [""])
sketch5.MapMode = "FlatFace"
sketch5.AttachmentOffset = App.Placement(App.Vector(0, 0, -22.206262), App.Rotation())
sketch5.addGeometry([
    Part.LineSegment(App.Vector(-4.793189, 83, 0), App.Vector(-9.681423, 83, 0)),
    Part.LineSegment(App.Vector(-9.681423, 83, 0), App.Vector(-15.793189, 81.084532, 0)),
    Part.LineSegment(App.Vector(-15.793189, 81.084532, 0), App.Vector(-15.793189, 84.818796, 0)),
    Part.LineSegment(App.Vector(-15.793189, 84.818796, 0), App.Vector(-4.793189, 84.818796, 0)),
    Part.LineSegment(App.Vector(-4.793189, 84.818796, 0), App.Vector(-4.793189, 83, 0)),
], False)
sketch5.addConstraint([
    Sketcher.Constraint("Coincident", 0, 2, 1, 1),
    Sketcher.Constraint("Coincident", 1, 2, 2, 1),
    Sketcher.Constraint("Coincident", 2, 2, 3, 1),
    Sketcher.Constraint("Coincident", 3, 2, 4, 1),
    Sketcher.Constraint("Coincident", 4, 2, 0, 1),
    Sketcher.Constraint("Horizontal", 0),
    Sketcher.Constraint("Vertical", 2),
    Sketcher.Constraint("Horizontal", 3),
    Sketcher.Constraint("Vertical", 4),
    Sketcher.Constraint("DistanceX", 3, 1, 3, 2, 11.0),
    Sketcher.Constraint("DistanceY", -1, 1, 0, 2, 83.0),
    Sketcher.Constraint("DistanceX", 0, 2, 0, 1, 4.888234),
    Sketcher.Constraint("DistanceY", 2, 1, 2, 2, 3.734265),
    Sketcher.Constraint("DistanceY", 4, 2, 4, 1, 1.818796),
    Sketcher.Constraint("DistanceX", 1, 2, -1, 1, 15.793189),
])
pocket2 = body.newObject("PartDesign::Pocket", "Pocket001")
pocket2.Profile = sketch5
pocket2.Length = 72
pocket2.Reversed = True

sketch6 = body.newObject("Sketcher::SketchObject", "Sketch005")
sketch6.AttachmentSupport = (doc.getObject("XY_Plane"), [""])
sketch6.MapMode = "FlatFace"
sketch6.AttachmentOffset = App.Placement(App.Vector(0, 0, -3), App.Rotation())
sketch6.addGeometry([
    Part.LineSegment(App.Vector(59.293738, -11.024578, 0), App.Vector(61.793738, -11.024578, 0)),
    Part.LineSegment(App.Vector(61.793738, -11.024578, 0), App.Vector(61.793738, -14.5618, 0)),
    Part.LineSegment(App.Vector(61.793738, -14.5618, 0), App.Vector(59.293738, -14.5618, 0)),
    Part.ArcOfCircle(Part.Circle(App.Vector(59.293738, -12.793189, 0), App.Vector(0, 0, 1), 1.768611), math.radians(90), math.radians(270)),
    Part.LineSegment(App.Vector(-56.206262, -10.764634, 0), App.Vector(-53.706262, -10.764634, 0)),
    Part.ArcOfCircle(Part.Circle(App.Vector(-53.706262, -12.793189, 0), App.Vector(0, 0, 1), 2.028555), math.radians(-90), math.radians(90)),
    Part.LineSegment(App.Vector(-53.706262, -14.821745, 0), App.Vector(-56.206262, -14.821745, 0)),
    Part.LineSegment(App.Vector(-56.206262, -14.821745, 0), App.Vector(-56.206262, -10.764634, 0)),
], False)
sketch6.addConstraint([
    Sketcher.Constraint("Coincident", 0, 2, 1, 1),
    Sketcher.Constraint("Coincident", 1, 2, 2, 1),
    Sketcher.Constraint("Tangent", 2, 2, 3, 2),
    Sketcher.Constraint("Tangent", 3, 1, 0, 1),
    Sketcher.Constraint("Tangent", 4, 2, 5, 2),
    Sketcher.Constraint("Tangent", 5, 1, 6, 1),
    Sketcher.Constraint("Coincident", 6, 2, 7, 1),
    Sketcher.Constraint("Coincident", 7, 2, 4, 1),
    Sketcher.Constraint("Horizontal", 0),
    Sketcher.Constraint("Vertical", 1),
    Sketcher.Constraint("Horizontal", 2),
    Sketcher.Constraint("Horizontal", 4),
    Sketcher.Constraint("Horizontal", 6),
    Sketcher.Constraint("Vertical", 7),
    Sketcher.Constraint("Horizontal", 3, 3, 5, 3),
    Sketcher.Constraint("Equal", 2, 4),
    Sketcher.Constraint("DistanceX", 0, 1, 0, 2, 2.5),
    Sketcher.Constraint("DistanceX", 5, 3, 3, 3, 113.0),
    Sketcher.Constraint("Radius", 3, 1.768611),
    Sketcher.Constraint("Radius", 5, 2.028555),
    Sketcher.Constraint("DistanceY", 1, 2, -1, 1, 14.5618),
    Sketcher.Constraint("DistanceX", -1, 1, 3, 3, 59.293738),
])
pocket3 = body.newObject("PartDesign::Pocket", "Pocket002")
pocket3.Profile = sketch6
pocket3.Length = 5
pocket3.Reversed = True
doc.recompute()

chamfer = body.newObject("PartDesign::Chamfer", "Chamfer")
chamfer.Base = (pocket3, edges_at(pocket3, [(54.794, -23.793, 36.5), (2.794, -23.793, 73), (-49.206, -23.793, 36.5)]))
chamfer.Size = 2

doc.recompute()
